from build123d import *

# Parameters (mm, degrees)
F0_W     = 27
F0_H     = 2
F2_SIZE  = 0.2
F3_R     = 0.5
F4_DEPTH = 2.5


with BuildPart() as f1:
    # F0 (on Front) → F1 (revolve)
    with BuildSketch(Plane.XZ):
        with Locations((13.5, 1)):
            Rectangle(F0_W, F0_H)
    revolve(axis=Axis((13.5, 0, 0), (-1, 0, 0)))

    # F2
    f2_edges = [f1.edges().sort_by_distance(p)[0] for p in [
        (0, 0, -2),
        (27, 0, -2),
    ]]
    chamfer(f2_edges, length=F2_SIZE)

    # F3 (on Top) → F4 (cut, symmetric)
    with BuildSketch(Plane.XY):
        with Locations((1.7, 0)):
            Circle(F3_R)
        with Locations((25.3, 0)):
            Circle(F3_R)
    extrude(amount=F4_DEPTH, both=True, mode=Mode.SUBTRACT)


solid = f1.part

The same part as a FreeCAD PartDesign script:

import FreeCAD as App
import Part
import Sketcher

V = App.Vector
Q = App.Units.Quantity


def edges_at(feature, points):
    """Names of the edges that pass closest to the given points."""
    edges = feature.Shape.Edges
    near = lambda p: min(range(len(edges)), key=lambda i: edges[i].distToShape(Part.Vertex(*p))[0])
    return sorted({f"Edge{near(p) + 1}" for p in points})


def add_polygon(sketch, points):
    """Adds a closed chain of lines whose ends are joined by coincident constraints."""
    first, n = sketch.GeometryCount, len(points)
    for a, b in zip(points, points[1:] + points[:1]):
        sketch.addGeometry(Part.LineSegment(App.Vector(*a, 0), App.Vector(*b, 0)), False)
    for i in range(n):
        sketch.addConstraint(Sketcher.Constraint("Coincident", first + i, 2, first + (i + 1) % n, 1))

doc = App.newDocument("Part")
params = doc.addObject("Spreadsheet::Sheet", "Params")
for row, (alias, value) in enumerate([
    ("sketch1_width", "27 mm"),
    ("sketch1_height", "2 mm"),
    ("revolution_angle", "360 deg"),
    ("chamfer_size", "0.2 mm"),
    ("sketch2_diameter", "1 mm"),
    ("pocket1_length", "5 mm"),
], start=1):
    params.set(f"A{row}", alias)
    params.set(f"B{row}", "=" + value)
    params.setAlias(f"B{row}", alias)

body = doc.addObject("PartDesign::Body", "Body")

# Sketch on XZ plane
sketch1 = doc.addObject("Sketcher::SketchObject", "Sketch")
body.addObject(sketch1)
sketch1.AttachmentSupport = (doc.XZ_Plane, [""])
sketch1.MapMode = "FlatFace"
add_polygon(sketch1, [(0, 2), (0, 0), (27, 0), (27, 2)])  # lines 0-3
sketch1.addConstraint([
    Sketcher.Constraint("Vertical", 0),
    Sketcher.Constraint("Horizontal", 1),
    Sketcher.Constraint("Vertical", 2),
    Sketcher.Constraint("Horizontal", 3),
    Sketcher.Constraint("Coincident", 0, 2, -1, 1),
    Sketcher.Constraint("DistanceX", 1, 1, 1, 2, Q("27 mm")),
    Sketcher.Constraint("DistanceY", 0, 2, 0, 1, Q("2 mm")),
])
sketch1.setExpression("Constraints[9]", "Params.sketch1_width")
sketch1.setExpression("Constraints[10]", "Params.sketch1_height")
revolution = doc.addObject("PartDesign::Revolution", "Revolution")
body.addObject(revolution)
revolution.Profile = sketch1
revolution.ReferenceAxis = (sketch1, ["H_Axis"])
revolution.setExpression("Angle", "Params.revolution_angle")
doc.recompute()

chamfer = doc.addObject("PartDesign::Chamfer", "Chamfer")
body.addObject(chamfer)
chamfer.Base = (revolution, edges_at(revolution, [(0, 0, -2), (27, 0, -2)]))
chamfer.setExpression("Size", "Params.chamfer_size")

# Sketch on XY plane
sketch2 = doc.addObject("Sketcher::SketchObject", "Sketch001")
body.addObject(sketch2)
sketch2.AttachmentSupport = (doc.XY_Plane, [""])
sketch2.MapMode = "FlatFace"
sketch2.addGeometry([
    Part.Circle(V(1.7, 0, 0), V(0, 0, 1), 0.5),
    Part.Circle(V(25.3, 0, 0), V(0, 0, 1), 0.5),
], False)
sketch2.addConstraint([
    Sketcher.Constraint("Equal", 0, 1),
    Sketcher.Constraint("PointOnObject", 0, 3, -1),
    Sketcher.Constraint("PointOnObject", 1, 3, -1),
    Sketcher.Constraint("Diameter", 0, Q("1 mm")),
    Sketcher.Constraint("DistanceX", -1, 1, 0, 3, Q("1.7 mm")),
    Sketcher.Constraint("DistanceX", -1, 1, 1, 3, Q("25.3 mm")),
])
sketch2.setExpression("Constraints[3]", "Params.sketch2_diameter")
pocket1 = doc.addObject("PartDesign::Pocket", "Pocket")
body.addObject(pocket1)
pocket1.Profile = sketch2
pocket1.setExpression("Length", "Params.pocket1_length")
pocket1.Midplane = True

doc.recompute()
